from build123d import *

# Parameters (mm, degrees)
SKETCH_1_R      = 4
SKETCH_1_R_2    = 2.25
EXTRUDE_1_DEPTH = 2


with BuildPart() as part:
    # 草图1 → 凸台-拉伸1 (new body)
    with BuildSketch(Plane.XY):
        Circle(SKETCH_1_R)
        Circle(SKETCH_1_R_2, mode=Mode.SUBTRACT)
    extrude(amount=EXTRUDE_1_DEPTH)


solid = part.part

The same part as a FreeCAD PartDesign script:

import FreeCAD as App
import Part
import Sketcher

doc = App.newDocument("Part")
body = doc.addObject("PartDesign::Body", "Body")

sketch1 = body.newObject("Sketcher::SketchObject", "Sketch")
sketch1.AttachmentSupport = (doc.getObject("XY_Plane"), [""])
sketch1.MapMode = "FlatFace"
sketch1.addGeometry([
    Part.Circle(App.Vector(0, 0, 0), App.Vector(0, 0, 1), 4),
    Part.Circle(App.Vector(0, 0, 0), App.Vector(0, 0, 1), 2.2),
], False)
sketch1.addConstraint([
    Sketcher.Constraint("Coincident", 0, 3, -1, 1),
    Sketcher.Constraint("Coincident", 1, 3, -1, 1),
    Sketcher.Constraint("Diameter", 0, 8.0),
    Sketcher.Constraint("Diameter", 1, 4.5),
])
pad1 = body.newObject("PartDesign::Pad", "Pad")
pad1.Profile = sketch1
pad1.Length = 2

doc.recompute()
